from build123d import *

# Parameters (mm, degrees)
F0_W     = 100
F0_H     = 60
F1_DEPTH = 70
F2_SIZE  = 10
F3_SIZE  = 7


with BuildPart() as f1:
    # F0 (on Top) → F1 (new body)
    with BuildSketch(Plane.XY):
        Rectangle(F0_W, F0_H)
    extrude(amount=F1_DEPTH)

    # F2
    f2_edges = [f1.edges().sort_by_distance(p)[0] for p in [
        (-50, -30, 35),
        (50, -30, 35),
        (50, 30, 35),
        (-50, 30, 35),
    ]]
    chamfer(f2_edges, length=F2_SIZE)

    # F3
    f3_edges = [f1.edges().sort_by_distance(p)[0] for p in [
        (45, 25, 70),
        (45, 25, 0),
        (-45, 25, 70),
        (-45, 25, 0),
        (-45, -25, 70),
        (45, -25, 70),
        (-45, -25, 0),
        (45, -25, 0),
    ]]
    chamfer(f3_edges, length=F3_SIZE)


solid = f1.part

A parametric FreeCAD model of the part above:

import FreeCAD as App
import Part
import Sketcher

V = App.Vector


def edges_at(feature, points):
    """Names of the edges that pass closest to the given points."""
    edges = feature.Shape.Edges
    near = lambda p: min(range(len(edges)), key=lambda i: edges[i].distToShape(Part.Vertex(*p))[0])
    return sorted({f"Edge{near(p) + 1}" for p in points})

doc = App.newDocument("Part")
body = doc.addObject("PartDesign::Body", "Body")

# Sketch on XY plane
sketch1 = body.newObject("Sketcher::SketchObject", "Sketch")
sketch1.AttachmentSupport = (doc.getObject("XY_Plane"), [""])
sketch1.MapMode = "FlatFace"
sketch1.addGeometry(Part.LineSegment(V(-50, 30, 0), V(-50, -30, 0)), False)
sketch1.addGeometry(Part.LineSegment(V(-50, -30, 0), V(50, -30, 0)), False)
sketch1.addGeometry(Part.LineSegment(V(50, -30, 0), V(50, 30, 0)), False)
sketch1.addGeometry(Part.LineSegment(V(50, 30, 0), V(-50, 30, 0)), False)
sketch1.addConstraint(Sketcher.Constraint("Coincident", 0, 2, 1, 1))
sketch1.addConstraint(Sketcher.Constraint("Coincident", 1, 2, 2, 1))
sketch1.addConstraint(Sketcher.Constraint("Coincident", 2, 2, 3, 1))
sketch1.addConstraint(Sketcher.Constraint("Coincident", 3, 2, 0, 1))
sketch1.addConstraint(Sketcher.Constraint("Vertical", 0))
sketch1.addConstraint(Sketcher.Constraint("Horizontal", 1))
sketch1.addConstraint(Sketcher.Constraint("Vertical", 2))
sketch1.addConstraint(Sketcher.Constraint("Horizontal", 3))
sketch1.addConstraint(Sketcher.Constraint("Symmetric", 0, 2, 2, 2, -1, 1))
sketch1.addConstraint(Sketcher.Constraint("DistanceX", 1, 1, 1, 2, 100.0))
sketch1.addConstraint(Sketcher.Constraint("DistanceY", 0, 2, 0, 1, 60.0))
pad1 = body.newObject("PartDesign::Pad", "Pad")
pad1.Profile = sketch1
pad1.Length = 70
doc.recompute()

chamfer = body.newObject("PartDesign::Chamfer", "Chamfer")
chamfer.Base = (pad1, edges_at(pad1, [
    (-50, -30, 35),
    (50, -30, 35),
    (50, 30, 35),
    (-50, 30, 35),
]))
chamfer.Size = 10
doc.recompute()

chamfer2 = body.newObject("PartDesign::Chamfer", "Chamfer001")
chamfer2.Base = (chamfer, edges_at(chamfer, [
    (45, 25, 70),
    (45, 25, 0),
    (-45, 25, 70),
    (-45, 25, 0),
    (-45, -25, 70),
    (45, -25, 70),
    (-45, -25, 0),
    (45, -25, 0),
]))
chamfer2.Size = 7

doc.recompute()
